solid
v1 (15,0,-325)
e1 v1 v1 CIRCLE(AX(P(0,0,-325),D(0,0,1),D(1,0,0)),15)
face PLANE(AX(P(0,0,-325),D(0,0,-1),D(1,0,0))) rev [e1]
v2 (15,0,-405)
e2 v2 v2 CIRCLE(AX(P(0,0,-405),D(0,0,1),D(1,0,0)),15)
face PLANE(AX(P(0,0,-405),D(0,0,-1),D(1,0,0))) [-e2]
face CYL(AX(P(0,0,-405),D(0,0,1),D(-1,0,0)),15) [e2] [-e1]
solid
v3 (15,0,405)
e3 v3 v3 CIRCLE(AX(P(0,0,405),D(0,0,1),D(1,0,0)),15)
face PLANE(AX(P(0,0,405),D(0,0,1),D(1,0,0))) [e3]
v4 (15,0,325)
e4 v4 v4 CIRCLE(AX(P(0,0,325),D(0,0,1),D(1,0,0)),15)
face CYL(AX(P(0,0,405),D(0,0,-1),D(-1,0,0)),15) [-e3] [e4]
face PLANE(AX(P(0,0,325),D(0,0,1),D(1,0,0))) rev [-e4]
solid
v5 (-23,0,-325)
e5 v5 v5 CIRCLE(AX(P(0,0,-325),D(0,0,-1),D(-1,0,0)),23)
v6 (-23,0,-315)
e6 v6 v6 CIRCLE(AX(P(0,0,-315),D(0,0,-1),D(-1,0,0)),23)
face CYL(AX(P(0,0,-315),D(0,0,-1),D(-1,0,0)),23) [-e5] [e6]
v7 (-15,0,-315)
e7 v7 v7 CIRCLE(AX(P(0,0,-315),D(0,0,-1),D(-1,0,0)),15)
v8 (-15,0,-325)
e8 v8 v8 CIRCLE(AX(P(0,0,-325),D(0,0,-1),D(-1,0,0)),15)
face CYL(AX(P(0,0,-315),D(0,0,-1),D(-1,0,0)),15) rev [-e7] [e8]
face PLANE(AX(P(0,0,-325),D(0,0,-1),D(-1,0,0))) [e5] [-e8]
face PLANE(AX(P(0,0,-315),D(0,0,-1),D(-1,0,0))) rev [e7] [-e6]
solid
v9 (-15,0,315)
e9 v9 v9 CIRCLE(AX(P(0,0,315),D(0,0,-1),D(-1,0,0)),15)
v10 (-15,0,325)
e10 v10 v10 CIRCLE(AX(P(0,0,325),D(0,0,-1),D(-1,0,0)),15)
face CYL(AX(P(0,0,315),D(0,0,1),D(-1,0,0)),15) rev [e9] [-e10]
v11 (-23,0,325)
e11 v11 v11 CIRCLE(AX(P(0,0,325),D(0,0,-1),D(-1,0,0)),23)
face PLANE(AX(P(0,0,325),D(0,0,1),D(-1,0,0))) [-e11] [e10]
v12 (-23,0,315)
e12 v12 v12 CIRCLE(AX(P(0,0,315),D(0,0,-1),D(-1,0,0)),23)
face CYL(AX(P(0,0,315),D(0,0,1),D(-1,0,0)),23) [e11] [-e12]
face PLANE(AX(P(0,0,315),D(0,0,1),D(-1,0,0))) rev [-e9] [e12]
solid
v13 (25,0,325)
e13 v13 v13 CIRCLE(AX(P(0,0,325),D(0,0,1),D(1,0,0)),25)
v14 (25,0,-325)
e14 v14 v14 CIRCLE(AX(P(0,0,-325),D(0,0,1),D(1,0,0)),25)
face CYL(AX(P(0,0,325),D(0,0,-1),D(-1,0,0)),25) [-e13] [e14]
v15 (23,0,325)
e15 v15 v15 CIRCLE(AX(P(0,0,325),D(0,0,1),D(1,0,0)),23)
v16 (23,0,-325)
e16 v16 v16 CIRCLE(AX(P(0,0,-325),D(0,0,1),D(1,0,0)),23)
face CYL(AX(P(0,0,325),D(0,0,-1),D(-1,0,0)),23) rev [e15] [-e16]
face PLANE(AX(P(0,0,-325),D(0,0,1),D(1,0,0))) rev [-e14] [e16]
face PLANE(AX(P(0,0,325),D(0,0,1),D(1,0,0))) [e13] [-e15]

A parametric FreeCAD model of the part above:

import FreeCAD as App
import Part
import Sketcher
Q = App.Units.Quantity


def faces_at(feature, points):
    """Names of the faces that lie closest to the given points."""
    faces = feature.Shape.Faces
    near = lambda p: min(range(len(faces)), key=lambda i: faces[i].distToShape(Part.Vertex(*p))[0])
    return sorted({f"Face{near(p) + 1}" for p in points})

doc = App.newDocument("Part")
body = doc.addObject("PartDesign::Body", "Body")

# Sketch on XY plane
sketch1 = body.newObject("Sketcher::SketchObject", "Sketch")
sketch1.AttachmentSupport = (doc.getObject("XY_Plane"), [""])
sketch1.MapMode = "FlatFace"
sketch1.addGeometry(Part.Circle(App.Vector(0, 0, 0), App.Vector(0, 0, 1), 25), False)
sketch1.addConstraint([
    Sketcher.Constraint("Coincident", 0, 3, -1, 1),
    Sketcher.Constraint("Diameter", 0, Q("50 mm")),
])
pad1 = body.newObject("PartDesign::Pad", "Pad")
pad1.Profile = sketch1
pad1.Length = 650
pad1.Midplane = True
doc.recompute()

thickness = body.newObject("PartDesign::Thickness", "Thickness")
thickness.Base = (pad1, faces_at(pad1, [(0, 0, 325), (0, 0, -325)]))
thickness.Value = 2
thickness.Reversed = True
thickness.Join = "Intersection"
body2 = doc.addObject("PartDesign::Body", "Body001")

# Sketch on XY plane
sketch2 = body2.newObject("Sketcher::SketchObject", "Sketch001")
sketch2.AttachmentSupport = (doc.getObject("XY_Plane001"), [""])
sketch2.MapMode = "FlatFace"
sketch2.AttachmentOffset = App.Placement(App.Vector(0, 0, 325), App.Rotation())
sketch2.addGeometry(Part.Circle(App.Vector(0, 0, 0), App.Vector(0, 0, 1), 15), False)
sketch2.addConstraint([
    Sketcher.Constraint("Coincident", 0, 3, -1, 1),
    Sketcher.Constraint("Diameter", 0, Q("30 mm")),
])
pad2 = body2.newObject("PartDesign::Pad", "Pad001")
pad2.Profile = sketch2
pad2.Length = 80
body3 = doc.addObject("PartDesign::Body", "Body002")
doc.recompute()

mirroring = doc.addObject("Part::Mirroring", "Mirroring")
mirroring.Source = body2
mirroring.Base = App.Vector(0, 0, 0)
mirroring.Normal = App.Vector(0, 0, 1)
body3.BaseFeature = mirroring
doc.recompute()
body4 = doc.addObject("PartDesign::Body", "Body003")

# Sketch on XY plane
sketch3 = body4.newObject("Sketcher::SketchObject", "Sketch002")
sketch3.AttachmentSupport = (doc.getObject("XY_Plane003"), [""])
sketch3.MapMode = "FlatFace"
sketch3.AttachmentOffset = App.Placement(App.Vector(0, 0, -325), App.Rotation())
sketch3.addGeometry([
    Part.Circle(App.Vector(0, 0, 0), App.Vector(0, 0, 1), 23),
    Part.Circle(App.Vector(0, 0, 0), App.Vector(0, 0, 1), 15),
], False)
sketch3.addConstraint([
    Sketcher.Constraint("Coincident", 0, 3, -1, 1),
    Sketcher.Constraint("Coincident", 1, 3, -1, 1),
    Sketcher.Constraint("Diameter", 0, Q("46 mm")),
    Sketcher.Constraint("Diameter", 1, Q("30 mm")),
])
pad3 = body4.newObject("PartDesign::Pad", "Pad002")
pad3.Profile = sketch3
pad3.Length = 10
body5 = doc.addObject("PartDesign::Body", "Body004")
doc.recompute()

mirroring2 = doc.addObject("Part::Mirroring", "Mirroring001")
mirroring2.Source = body4
mirroring2.Base = App.Vector(0, 0, 0)
mirroring2.Normal = App.Vector(0, 0, 1)
body5.BaseFeature = mirroring2
doc.recompute()
mirroring.Visibility = False
mirroring2.Visibility = False

doc.recompute()
